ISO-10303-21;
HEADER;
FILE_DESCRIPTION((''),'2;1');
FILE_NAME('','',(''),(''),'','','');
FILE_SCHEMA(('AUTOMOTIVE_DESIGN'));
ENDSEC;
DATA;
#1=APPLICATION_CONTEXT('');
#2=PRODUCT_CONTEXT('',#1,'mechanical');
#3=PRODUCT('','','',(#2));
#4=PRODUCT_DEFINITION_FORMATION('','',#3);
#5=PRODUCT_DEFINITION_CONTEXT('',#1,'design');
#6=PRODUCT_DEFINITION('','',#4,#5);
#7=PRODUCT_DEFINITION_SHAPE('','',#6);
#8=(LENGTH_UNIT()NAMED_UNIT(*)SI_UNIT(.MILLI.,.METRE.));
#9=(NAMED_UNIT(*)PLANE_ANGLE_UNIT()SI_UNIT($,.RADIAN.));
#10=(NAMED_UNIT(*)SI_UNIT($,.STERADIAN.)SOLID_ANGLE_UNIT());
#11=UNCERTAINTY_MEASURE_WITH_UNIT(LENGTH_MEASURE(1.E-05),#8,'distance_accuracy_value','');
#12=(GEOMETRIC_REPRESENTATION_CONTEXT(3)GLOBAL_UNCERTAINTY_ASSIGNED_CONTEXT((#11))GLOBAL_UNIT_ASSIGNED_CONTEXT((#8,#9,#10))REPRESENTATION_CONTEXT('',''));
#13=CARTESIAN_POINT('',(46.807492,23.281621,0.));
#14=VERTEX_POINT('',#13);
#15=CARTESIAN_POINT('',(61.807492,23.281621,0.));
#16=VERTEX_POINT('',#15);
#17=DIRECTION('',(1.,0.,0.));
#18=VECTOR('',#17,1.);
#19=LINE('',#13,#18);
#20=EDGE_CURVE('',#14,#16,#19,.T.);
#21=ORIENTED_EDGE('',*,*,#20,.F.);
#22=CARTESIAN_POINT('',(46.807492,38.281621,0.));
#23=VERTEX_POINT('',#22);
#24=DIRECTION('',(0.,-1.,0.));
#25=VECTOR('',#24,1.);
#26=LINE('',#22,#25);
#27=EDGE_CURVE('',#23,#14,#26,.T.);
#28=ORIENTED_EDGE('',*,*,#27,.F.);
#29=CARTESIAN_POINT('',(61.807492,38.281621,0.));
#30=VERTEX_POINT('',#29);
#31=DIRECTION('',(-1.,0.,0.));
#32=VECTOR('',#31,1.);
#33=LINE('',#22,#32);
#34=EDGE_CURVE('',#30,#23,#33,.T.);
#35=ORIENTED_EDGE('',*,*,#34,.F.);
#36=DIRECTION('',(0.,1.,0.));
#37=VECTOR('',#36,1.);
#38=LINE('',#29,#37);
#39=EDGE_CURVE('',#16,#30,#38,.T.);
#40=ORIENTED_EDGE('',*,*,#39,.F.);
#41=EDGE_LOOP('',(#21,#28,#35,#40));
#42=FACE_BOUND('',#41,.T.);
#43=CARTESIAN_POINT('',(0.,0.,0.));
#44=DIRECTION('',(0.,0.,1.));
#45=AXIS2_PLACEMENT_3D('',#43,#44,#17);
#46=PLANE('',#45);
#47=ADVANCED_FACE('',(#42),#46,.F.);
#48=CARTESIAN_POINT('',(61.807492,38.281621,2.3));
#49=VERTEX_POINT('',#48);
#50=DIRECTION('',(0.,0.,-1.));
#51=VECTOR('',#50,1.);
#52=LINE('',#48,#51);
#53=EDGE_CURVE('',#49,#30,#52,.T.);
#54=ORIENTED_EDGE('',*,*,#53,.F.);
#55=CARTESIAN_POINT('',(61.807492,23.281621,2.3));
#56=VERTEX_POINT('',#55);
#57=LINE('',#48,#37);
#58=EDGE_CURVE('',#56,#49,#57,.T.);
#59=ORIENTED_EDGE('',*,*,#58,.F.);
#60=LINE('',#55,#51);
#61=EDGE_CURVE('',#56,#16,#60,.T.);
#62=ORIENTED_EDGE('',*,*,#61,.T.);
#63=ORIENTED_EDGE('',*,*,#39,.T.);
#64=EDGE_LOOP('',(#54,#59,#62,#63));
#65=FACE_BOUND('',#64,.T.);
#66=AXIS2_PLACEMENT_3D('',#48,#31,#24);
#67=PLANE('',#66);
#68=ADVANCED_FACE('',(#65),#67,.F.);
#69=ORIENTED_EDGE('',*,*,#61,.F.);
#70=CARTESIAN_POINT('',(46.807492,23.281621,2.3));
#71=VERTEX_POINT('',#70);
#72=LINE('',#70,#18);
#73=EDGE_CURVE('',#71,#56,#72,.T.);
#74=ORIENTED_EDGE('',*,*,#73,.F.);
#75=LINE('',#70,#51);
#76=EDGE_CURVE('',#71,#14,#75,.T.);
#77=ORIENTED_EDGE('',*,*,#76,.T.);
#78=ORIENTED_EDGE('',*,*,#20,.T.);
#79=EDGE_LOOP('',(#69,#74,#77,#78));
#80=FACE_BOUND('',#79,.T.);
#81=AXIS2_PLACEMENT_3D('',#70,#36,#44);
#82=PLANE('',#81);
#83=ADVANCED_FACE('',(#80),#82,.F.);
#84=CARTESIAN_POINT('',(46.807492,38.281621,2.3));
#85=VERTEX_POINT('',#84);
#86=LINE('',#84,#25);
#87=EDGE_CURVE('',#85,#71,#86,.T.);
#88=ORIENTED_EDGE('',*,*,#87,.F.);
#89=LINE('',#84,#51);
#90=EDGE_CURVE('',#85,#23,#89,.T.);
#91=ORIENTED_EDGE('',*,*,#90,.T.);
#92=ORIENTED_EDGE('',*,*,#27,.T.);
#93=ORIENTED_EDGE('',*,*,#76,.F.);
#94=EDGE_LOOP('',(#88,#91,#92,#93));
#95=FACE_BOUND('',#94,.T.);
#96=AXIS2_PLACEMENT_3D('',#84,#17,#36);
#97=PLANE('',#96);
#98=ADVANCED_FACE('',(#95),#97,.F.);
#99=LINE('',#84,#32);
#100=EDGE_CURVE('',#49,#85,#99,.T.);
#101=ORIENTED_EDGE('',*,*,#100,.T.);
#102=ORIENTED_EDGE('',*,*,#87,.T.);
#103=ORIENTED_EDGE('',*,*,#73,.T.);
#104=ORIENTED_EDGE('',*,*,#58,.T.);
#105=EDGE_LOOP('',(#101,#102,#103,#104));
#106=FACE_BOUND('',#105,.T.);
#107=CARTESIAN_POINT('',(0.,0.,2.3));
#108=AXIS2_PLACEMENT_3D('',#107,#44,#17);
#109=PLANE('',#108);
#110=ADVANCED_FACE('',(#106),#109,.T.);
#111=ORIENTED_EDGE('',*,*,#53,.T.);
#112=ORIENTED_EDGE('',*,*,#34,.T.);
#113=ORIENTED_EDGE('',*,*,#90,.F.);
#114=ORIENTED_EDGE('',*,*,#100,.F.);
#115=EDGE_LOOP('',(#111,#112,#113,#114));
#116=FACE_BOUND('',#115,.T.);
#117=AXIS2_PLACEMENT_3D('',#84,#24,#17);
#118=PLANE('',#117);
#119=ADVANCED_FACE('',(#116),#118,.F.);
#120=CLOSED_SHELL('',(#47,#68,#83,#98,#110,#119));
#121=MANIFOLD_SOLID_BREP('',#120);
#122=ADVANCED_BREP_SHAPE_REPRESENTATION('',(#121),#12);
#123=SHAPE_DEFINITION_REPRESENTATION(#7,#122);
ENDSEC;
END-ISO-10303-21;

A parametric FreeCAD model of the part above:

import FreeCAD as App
import Part
import Sketcher
Q = App.Units.Quantity

doc = App.newDocument("Part")
body = doc.addObject("PartDesign::Body", "Body")

sketch1 = body.newObject("Sketcher::SketchObject", "Sketch")
sketch1.AttachmentSupport = (doc.getObject("XY_Plane"), [""])
sketch1.MapMode = "FlatFace"
sketch1.addGeometry([
    Part.LineSegment(App.Vector(47, 38, 0), App.Vector(47, 23, 0)),
    Part.LineSegment(App.Vector(47, 23, 0), App.Vector(62, 23, 0)),
    Part.LineSegment(App.Vector(62, 23, 0), App.Vector(62, 38, 0)),
    Part.LineSegment(App.Vector(62, 38, 0), App.Vector(47, 38, 0)),
], False)
sketch1.addConstraint([
    Sketcher.Constraint("Coincident", 0, 2, 1, 1),
    Sketcher.Constraint("Coincident", 1, 2, 2, 1),
    Sketcher.Constraint("Coincident", 2, 2, 3, 1),
    Sketcher.Constraint("Coincident", 3, 2, 0, 1),
    Sketcher.Constraint("Vertical", 0),
    Sketcher.Constraint("Horizontal", 1),
    Sketcher.Constraint("Vertical", 2),
    Sketcher.Constraint("Horizontal", 3),
    Sketcher.Constraint("Equal", 3, 0),
    Sketcher.Constraint("DistanceX", 1, 1, 1, 2, Q("15 mm")),
    Sketcher.Constraint("DistanceX", -1, 1, 0, 2, Q("46.807492 mm")),
    Sketcher.Constraint("DistanceY", -1, 1, 0, 2, Q("23.281621 mm")),
])
pad1 = body.newObject("PartDesign::Pad", "Pad")
pad1.Profile = sketch1
pad1.Length = 2.3

doc.recompute()
